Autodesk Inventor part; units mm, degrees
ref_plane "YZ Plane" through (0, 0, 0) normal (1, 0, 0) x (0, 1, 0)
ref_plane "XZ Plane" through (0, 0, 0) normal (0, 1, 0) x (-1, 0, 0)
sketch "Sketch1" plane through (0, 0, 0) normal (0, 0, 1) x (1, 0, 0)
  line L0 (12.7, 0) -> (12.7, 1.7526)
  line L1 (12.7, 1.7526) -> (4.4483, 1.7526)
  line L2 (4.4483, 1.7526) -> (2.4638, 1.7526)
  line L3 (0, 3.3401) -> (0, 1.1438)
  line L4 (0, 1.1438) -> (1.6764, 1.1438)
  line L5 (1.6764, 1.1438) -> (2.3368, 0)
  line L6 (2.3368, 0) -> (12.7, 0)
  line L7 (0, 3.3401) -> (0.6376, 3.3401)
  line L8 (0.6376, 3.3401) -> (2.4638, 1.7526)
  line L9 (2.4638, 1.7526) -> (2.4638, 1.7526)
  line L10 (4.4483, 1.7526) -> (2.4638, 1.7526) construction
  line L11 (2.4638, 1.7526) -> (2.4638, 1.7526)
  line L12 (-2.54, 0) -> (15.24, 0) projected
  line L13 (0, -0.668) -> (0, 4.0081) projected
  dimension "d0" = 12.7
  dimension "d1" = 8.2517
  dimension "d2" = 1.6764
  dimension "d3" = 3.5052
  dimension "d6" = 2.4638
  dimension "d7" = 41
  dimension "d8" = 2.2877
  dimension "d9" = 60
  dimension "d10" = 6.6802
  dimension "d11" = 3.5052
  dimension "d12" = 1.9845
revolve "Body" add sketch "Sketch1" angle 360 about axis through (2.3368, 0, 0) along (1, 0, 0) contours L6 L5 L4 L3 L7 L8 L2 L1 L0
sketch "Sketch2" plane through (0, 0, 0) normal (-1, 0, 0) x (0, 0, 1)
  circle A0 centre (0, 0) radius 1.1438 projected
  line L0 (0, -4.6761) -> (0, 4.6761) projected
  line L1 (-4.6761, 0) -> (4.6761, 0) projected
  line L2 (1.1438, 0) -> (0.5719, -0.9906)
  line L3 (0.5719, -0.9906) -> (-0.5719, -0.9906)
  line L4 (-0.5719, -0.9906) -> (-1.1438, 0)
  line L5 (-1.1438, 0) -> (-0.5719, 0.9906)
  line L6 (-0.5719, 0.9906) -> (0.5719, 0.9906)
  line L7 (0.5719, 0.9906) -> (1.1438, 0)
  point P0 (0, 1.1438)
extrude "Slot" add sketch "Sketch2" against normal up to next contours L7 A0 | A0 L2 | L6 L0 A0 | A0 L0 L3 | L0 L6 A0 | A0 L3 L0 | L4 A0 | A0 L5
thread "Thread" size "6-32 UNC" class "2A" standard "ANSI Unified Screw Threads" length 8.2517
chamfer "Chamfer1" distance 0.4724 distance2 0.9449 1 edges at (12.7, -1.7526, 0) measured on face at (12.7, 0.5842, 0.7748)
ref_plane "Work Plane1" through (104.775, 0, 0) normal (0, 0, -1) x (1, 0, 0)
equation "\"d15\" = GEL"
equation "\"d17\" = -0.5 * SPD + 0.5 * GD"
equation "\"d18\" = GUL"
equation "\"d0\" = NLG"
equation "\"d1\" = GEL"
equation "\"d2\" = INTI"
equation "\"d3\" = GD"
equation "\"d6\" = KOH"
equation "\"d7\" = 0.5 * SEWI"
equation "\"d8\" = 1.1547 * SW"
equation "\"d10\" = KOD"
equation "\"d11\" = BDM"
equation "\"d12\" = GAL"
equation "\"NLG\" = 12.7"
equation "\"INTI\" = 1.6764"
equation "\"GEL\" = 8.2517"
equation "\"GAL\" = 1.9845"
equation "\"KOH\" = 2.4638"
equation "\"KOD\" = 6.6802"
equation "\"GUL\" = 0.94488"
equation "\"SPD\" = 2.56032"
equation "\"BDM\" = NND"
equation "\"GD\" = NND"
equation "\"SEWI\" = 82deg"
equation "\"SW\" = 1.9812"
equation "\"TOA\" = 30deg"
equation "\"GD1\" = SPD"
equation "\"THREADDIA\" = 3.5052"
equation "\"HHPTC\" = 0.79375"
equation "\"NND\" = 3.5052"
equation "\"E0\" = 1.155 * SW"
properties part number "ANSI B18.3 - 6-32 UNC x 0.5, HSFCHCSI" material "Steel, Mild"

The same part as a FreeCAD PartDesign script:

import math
import FreeCAD as App
import Part
import Sketcher
Q = App.Units.Quantity


def edges_at(feature, points):
    """Names of the edges that pass closest to the given points."""
    edges = feature.Shape.Edges
    near = lambda p: min(range(len(edges)), key=lambda i: edges[i].distToShape(Part.Vertex(*p))[0])
    return sorted({f"Edge{near(p) + 1}" for p in points})


def add_polygon(sketch, points):
    """Adds a closed chain of lines whose ends are joined by coincident constraints."""
    first, n = sketch.GeometryCount, len(points)
    for a, b in zip(points, points[1:] + points[:1]):
        sketch.addGeometry(Part.LineSegment(App.Vector(*a, 0), App.Vector(*b, 0)), False)
    for i in range(n):
        sketch.addConstraint(Sketcher.Constraint("Coincident", first + i, 2, first + (i + 1) % n, 1))

doc = App.newDocument("Part")
params = doc.addObject("Spreadsheet::Sheet", "Params")
for row, (alias, value) in enumerate([
    ("sketch1_width", "0.066 in"),
    ("sketch1_width2", "0.408 in"),
    ("sketch1_height", "0.069 in"),
    ("revolution_angle", "360 deg"),
    ("chamfer_size", "0.0185984 in"),
    ("chamfer_size2", "0.0372008 in"),
], start=1):
    params.set(f"A{row}", alias)
    params.set(f"B{row}", "=" + value)
    params.setAlias(f"B{row}", alias)

body = doc.addObject("PartDesign::Body", "Body")

# Sketch on XY plane
sketch1 = body.newObject("Sketcher::SketchObject", "Sketch")
sketch1.AttachmentSupport = (doc.getObject("XY_Plane"), [""])
sketch1.MapMode = "FlatFace"
add_polygon(sketch1, [(2.3, 0), (12.7, 0), (12.7, 1.8), (2.5, 1.8), (0.6, 3.3), (0, 3.3), (0, 1.1), (1.7, 1.1)])  # lines 0-7
sketch1.addConstraint([
    Sketcher.Constraint("Horizontal", 0),
    Sketcher.Constraint("Vertical", 1),
    Sketcher.Constraint("Horizontal", 2),
    Sketcher.Constraint("Horizontal", 4),
    Sketcher.Constraint("Vertical", 5),
    Sketcher.Constraint("Horizontal", 6),
    Sketcher.Constraint("PointOnObject", 0, 2, -1),
    Sketcher.Constraint("PointOnObject", 4, 2, -2),
    Sketcher.Constraint("DistanceX", -1, 1, 0, 2, Q("0.5 in")),
    Sketcher.Constraint("DistanceX", 6, 1, 6, 2, Q("0.066 in")),
    Sketcher.Constraint("DistanceX", -1, 1, 2, 2, Q("0.097 in")),
    Sketcher.Constraint("Angle", 3, Q("138.9998 deg")),
    Sketcher.Constraint("Angle", 7, Q("-59.999 deg")),
    Sketcher.Constraint("DistanceX", 0, 1, 0, 2, Q("0.408 in")),
    Sketcher.Constraint("DistanceY", 1, 1, 1, 2, Q("0.069 in")),
    Sketcher.Constraint("DistanceX", 4, 2, 4, 1, Q("0.0251 in")),
])
sketch1.setExpression("Constraints[17]", "Params.sketch1_width")
sketch1.setExpression("Constraints[21]", "Params.sketch1_width2")
sketch1.setExpression("Constraints[22]", "Params.sketch1_height")
revolution = body.newObject("PartDesign::Revolution", "Revolution")
revolution.Profile = sketch1
revolution.ReferenceAxis = (sketch1, ["H_Axis"])
revolution.setExpression("Angle", "Params.revolution_angle")

# Sketch on YZ plane
sketch2 = body.newObject("Sketcher::SketchObject", "Sketch001")
sketch2.AttachmentSupport = (doc.getObject("YZ_Plane"), [""])
sketch2.MapMode = "FlatFace"
sketch2.addGeometry([
    Part.LineSegment(App.Vector(1, 0.6, 0), App.Vector(0, 1.1, 0)),  # 0
    Part.ArcOfCircle(Part.Circle(App.Vector(0, 0, 0), App.Vector(0, 0, 1), 1.1), math.radians(30), math.radians(90)),  # 1
    Part.ArcOfCircle(Part.Circle(App.Vector(0, 0, 0), App.Vector(0, 0, 1), 1.1), math.radians(90), math.radians(150)),  # 2
    Part.LineSegment(App.Vector(0, 1.1, 0), App.Vector(-1, 0.6, 0)),  # 3
    Part.ArcOfCircle(Part.Circle(App.Vector(0, 0, 0), App.Vector(0, 0, 1), 1.1), math.radians(-30), math.radians(30)),  # 4
    Part.LineSegment(App.Vector(1, 0.6, 0), App.Vector(1, -0.6, 0)),  # 5
    Part.LineSegment(App.Vector(-1, 0.6, 0), App.Vector(-1, -0.6, 0)),  # 6
    Part.ArcOfCircle(Part.Circle(App.Vector(0, 0, 0), App.Vector(0, 0, 1), 1.1), math.radians(150), math.radians(210)),  # 7
    Part.LineSegment(App.Vector(-1, -0.6, 0), App.Vector(0, -1.1, 0)),  # 8
    Part.ArcOfCircle(Part.Circle(App.Vector(0, 0, 0), App.Vector(0, 0, 1), 1.1), math.radians(-150), math.radians(-90)),  # 9
    Part.ArcOfCircle(Part.Circle(App.Vector(0, 0, 0), App.Vector(0, 0, 1), 1.1), math.radians(-90), math.radians(-30)),  # 10
    Part.LineSegment(App.Vector(0, -1.1, 0), App.Vector(1, -0.6, 0)),  # 11
], False)
sketch2.addConstraint([
    Sketcher.Constraint("Coincident", 0, 1, 1, 1),
    Sketcher.Constraint("Coincident", 1, 2, 0, 2),
    Sketcher.Constraint("Coincident", 2, 1, 3, 1),
    Sketcher.Constraint("Coincident", 3, 2, 2, 2),
    Sketcher.Constraint("Coincident", 4, 1, 5, 2),
    Sketcher.Constraint("Coincident", 5, 1, 4, 2),
    Sketcher.Constraint("Coincident", 6, 1, 7, 1),
    Sketcher.Constraint("Coincident", 7, 2, 6, 2),
    Sketcher.Constraint("Coincident", 8, 1, 9, 1),
    Sketcher.Constraint("Coincident", 9, 2, 8, 2),
    Sketcher.Constraint("Coincident", 10, 1, 11, 1),
    Sketcher.Constraint("Coincident", 11, 2, 10, 2),
    Sketcher.Constraint("Vertical", 5),
    Sketcher.Constraint("Vertical", 6),
    Sketcher.Constraint("Coincident", 1, 3, -1, 1),
    Sketcher.Constraint("Coincident", 2, 3, -1, 1),
    Sketcher.Constraint("Coincident", 4, 3, -1, 1),
    Sketcher.Constraint("Coincident", 7, 3, -1, 1),
    Sketcher.Constraint("Coincident", 9, 3, -1, 1),
    Sketcher.Constraint("Coincident", 10, 3, -1, 1),
    Sketcher.Constraint("Coincident", 2, 1, 1, 2),
    Sketcher.Constraint("Coincident", 5, 1, 0, 1),
    Sketcher.Constraint("Coincident", 6, 1, 3, 2),
    Sketcher.Constraint("Coincident", 8, 1, 7, 2),
    Sketcher.Constraint("Coincident", 10, 1, 9, 2),
    Sketcher.Constraint("PointOnObject", 1, 2, -2),
    Sketcher.Constraint("PointOnObject", 9, 2, -2),
    Sketcher.Constraint("Parallel", 0, 8),
    Sketcher.Constraint("Parallel", 3, 11),
    Sketcher.Constraint("Angle", 0, Q("150.001 deg")),
    Sketcher.Constraint("Radius", 1, Q("1.1438 mm")),
])
pad1 = body.newObject("PartDesign::Pad", "Pad")
pad1.Profile = sketch2
pad1.Type = "UpToFirst"
doc.recompute()

chamfer = body.newObject("PartDesign::Chamfer", "Chamfer")
chamfer.Base = (pad1, edges_at(pad1, [(12.7, -1.753, 0)]))
chamfer.ChamferType = "Two distances"
chamfer.setExpression("Size", "Params.chamfer_size")
chamfer.setExpression("Size2", "Params.chamfer_size2")

doc.recompute()
